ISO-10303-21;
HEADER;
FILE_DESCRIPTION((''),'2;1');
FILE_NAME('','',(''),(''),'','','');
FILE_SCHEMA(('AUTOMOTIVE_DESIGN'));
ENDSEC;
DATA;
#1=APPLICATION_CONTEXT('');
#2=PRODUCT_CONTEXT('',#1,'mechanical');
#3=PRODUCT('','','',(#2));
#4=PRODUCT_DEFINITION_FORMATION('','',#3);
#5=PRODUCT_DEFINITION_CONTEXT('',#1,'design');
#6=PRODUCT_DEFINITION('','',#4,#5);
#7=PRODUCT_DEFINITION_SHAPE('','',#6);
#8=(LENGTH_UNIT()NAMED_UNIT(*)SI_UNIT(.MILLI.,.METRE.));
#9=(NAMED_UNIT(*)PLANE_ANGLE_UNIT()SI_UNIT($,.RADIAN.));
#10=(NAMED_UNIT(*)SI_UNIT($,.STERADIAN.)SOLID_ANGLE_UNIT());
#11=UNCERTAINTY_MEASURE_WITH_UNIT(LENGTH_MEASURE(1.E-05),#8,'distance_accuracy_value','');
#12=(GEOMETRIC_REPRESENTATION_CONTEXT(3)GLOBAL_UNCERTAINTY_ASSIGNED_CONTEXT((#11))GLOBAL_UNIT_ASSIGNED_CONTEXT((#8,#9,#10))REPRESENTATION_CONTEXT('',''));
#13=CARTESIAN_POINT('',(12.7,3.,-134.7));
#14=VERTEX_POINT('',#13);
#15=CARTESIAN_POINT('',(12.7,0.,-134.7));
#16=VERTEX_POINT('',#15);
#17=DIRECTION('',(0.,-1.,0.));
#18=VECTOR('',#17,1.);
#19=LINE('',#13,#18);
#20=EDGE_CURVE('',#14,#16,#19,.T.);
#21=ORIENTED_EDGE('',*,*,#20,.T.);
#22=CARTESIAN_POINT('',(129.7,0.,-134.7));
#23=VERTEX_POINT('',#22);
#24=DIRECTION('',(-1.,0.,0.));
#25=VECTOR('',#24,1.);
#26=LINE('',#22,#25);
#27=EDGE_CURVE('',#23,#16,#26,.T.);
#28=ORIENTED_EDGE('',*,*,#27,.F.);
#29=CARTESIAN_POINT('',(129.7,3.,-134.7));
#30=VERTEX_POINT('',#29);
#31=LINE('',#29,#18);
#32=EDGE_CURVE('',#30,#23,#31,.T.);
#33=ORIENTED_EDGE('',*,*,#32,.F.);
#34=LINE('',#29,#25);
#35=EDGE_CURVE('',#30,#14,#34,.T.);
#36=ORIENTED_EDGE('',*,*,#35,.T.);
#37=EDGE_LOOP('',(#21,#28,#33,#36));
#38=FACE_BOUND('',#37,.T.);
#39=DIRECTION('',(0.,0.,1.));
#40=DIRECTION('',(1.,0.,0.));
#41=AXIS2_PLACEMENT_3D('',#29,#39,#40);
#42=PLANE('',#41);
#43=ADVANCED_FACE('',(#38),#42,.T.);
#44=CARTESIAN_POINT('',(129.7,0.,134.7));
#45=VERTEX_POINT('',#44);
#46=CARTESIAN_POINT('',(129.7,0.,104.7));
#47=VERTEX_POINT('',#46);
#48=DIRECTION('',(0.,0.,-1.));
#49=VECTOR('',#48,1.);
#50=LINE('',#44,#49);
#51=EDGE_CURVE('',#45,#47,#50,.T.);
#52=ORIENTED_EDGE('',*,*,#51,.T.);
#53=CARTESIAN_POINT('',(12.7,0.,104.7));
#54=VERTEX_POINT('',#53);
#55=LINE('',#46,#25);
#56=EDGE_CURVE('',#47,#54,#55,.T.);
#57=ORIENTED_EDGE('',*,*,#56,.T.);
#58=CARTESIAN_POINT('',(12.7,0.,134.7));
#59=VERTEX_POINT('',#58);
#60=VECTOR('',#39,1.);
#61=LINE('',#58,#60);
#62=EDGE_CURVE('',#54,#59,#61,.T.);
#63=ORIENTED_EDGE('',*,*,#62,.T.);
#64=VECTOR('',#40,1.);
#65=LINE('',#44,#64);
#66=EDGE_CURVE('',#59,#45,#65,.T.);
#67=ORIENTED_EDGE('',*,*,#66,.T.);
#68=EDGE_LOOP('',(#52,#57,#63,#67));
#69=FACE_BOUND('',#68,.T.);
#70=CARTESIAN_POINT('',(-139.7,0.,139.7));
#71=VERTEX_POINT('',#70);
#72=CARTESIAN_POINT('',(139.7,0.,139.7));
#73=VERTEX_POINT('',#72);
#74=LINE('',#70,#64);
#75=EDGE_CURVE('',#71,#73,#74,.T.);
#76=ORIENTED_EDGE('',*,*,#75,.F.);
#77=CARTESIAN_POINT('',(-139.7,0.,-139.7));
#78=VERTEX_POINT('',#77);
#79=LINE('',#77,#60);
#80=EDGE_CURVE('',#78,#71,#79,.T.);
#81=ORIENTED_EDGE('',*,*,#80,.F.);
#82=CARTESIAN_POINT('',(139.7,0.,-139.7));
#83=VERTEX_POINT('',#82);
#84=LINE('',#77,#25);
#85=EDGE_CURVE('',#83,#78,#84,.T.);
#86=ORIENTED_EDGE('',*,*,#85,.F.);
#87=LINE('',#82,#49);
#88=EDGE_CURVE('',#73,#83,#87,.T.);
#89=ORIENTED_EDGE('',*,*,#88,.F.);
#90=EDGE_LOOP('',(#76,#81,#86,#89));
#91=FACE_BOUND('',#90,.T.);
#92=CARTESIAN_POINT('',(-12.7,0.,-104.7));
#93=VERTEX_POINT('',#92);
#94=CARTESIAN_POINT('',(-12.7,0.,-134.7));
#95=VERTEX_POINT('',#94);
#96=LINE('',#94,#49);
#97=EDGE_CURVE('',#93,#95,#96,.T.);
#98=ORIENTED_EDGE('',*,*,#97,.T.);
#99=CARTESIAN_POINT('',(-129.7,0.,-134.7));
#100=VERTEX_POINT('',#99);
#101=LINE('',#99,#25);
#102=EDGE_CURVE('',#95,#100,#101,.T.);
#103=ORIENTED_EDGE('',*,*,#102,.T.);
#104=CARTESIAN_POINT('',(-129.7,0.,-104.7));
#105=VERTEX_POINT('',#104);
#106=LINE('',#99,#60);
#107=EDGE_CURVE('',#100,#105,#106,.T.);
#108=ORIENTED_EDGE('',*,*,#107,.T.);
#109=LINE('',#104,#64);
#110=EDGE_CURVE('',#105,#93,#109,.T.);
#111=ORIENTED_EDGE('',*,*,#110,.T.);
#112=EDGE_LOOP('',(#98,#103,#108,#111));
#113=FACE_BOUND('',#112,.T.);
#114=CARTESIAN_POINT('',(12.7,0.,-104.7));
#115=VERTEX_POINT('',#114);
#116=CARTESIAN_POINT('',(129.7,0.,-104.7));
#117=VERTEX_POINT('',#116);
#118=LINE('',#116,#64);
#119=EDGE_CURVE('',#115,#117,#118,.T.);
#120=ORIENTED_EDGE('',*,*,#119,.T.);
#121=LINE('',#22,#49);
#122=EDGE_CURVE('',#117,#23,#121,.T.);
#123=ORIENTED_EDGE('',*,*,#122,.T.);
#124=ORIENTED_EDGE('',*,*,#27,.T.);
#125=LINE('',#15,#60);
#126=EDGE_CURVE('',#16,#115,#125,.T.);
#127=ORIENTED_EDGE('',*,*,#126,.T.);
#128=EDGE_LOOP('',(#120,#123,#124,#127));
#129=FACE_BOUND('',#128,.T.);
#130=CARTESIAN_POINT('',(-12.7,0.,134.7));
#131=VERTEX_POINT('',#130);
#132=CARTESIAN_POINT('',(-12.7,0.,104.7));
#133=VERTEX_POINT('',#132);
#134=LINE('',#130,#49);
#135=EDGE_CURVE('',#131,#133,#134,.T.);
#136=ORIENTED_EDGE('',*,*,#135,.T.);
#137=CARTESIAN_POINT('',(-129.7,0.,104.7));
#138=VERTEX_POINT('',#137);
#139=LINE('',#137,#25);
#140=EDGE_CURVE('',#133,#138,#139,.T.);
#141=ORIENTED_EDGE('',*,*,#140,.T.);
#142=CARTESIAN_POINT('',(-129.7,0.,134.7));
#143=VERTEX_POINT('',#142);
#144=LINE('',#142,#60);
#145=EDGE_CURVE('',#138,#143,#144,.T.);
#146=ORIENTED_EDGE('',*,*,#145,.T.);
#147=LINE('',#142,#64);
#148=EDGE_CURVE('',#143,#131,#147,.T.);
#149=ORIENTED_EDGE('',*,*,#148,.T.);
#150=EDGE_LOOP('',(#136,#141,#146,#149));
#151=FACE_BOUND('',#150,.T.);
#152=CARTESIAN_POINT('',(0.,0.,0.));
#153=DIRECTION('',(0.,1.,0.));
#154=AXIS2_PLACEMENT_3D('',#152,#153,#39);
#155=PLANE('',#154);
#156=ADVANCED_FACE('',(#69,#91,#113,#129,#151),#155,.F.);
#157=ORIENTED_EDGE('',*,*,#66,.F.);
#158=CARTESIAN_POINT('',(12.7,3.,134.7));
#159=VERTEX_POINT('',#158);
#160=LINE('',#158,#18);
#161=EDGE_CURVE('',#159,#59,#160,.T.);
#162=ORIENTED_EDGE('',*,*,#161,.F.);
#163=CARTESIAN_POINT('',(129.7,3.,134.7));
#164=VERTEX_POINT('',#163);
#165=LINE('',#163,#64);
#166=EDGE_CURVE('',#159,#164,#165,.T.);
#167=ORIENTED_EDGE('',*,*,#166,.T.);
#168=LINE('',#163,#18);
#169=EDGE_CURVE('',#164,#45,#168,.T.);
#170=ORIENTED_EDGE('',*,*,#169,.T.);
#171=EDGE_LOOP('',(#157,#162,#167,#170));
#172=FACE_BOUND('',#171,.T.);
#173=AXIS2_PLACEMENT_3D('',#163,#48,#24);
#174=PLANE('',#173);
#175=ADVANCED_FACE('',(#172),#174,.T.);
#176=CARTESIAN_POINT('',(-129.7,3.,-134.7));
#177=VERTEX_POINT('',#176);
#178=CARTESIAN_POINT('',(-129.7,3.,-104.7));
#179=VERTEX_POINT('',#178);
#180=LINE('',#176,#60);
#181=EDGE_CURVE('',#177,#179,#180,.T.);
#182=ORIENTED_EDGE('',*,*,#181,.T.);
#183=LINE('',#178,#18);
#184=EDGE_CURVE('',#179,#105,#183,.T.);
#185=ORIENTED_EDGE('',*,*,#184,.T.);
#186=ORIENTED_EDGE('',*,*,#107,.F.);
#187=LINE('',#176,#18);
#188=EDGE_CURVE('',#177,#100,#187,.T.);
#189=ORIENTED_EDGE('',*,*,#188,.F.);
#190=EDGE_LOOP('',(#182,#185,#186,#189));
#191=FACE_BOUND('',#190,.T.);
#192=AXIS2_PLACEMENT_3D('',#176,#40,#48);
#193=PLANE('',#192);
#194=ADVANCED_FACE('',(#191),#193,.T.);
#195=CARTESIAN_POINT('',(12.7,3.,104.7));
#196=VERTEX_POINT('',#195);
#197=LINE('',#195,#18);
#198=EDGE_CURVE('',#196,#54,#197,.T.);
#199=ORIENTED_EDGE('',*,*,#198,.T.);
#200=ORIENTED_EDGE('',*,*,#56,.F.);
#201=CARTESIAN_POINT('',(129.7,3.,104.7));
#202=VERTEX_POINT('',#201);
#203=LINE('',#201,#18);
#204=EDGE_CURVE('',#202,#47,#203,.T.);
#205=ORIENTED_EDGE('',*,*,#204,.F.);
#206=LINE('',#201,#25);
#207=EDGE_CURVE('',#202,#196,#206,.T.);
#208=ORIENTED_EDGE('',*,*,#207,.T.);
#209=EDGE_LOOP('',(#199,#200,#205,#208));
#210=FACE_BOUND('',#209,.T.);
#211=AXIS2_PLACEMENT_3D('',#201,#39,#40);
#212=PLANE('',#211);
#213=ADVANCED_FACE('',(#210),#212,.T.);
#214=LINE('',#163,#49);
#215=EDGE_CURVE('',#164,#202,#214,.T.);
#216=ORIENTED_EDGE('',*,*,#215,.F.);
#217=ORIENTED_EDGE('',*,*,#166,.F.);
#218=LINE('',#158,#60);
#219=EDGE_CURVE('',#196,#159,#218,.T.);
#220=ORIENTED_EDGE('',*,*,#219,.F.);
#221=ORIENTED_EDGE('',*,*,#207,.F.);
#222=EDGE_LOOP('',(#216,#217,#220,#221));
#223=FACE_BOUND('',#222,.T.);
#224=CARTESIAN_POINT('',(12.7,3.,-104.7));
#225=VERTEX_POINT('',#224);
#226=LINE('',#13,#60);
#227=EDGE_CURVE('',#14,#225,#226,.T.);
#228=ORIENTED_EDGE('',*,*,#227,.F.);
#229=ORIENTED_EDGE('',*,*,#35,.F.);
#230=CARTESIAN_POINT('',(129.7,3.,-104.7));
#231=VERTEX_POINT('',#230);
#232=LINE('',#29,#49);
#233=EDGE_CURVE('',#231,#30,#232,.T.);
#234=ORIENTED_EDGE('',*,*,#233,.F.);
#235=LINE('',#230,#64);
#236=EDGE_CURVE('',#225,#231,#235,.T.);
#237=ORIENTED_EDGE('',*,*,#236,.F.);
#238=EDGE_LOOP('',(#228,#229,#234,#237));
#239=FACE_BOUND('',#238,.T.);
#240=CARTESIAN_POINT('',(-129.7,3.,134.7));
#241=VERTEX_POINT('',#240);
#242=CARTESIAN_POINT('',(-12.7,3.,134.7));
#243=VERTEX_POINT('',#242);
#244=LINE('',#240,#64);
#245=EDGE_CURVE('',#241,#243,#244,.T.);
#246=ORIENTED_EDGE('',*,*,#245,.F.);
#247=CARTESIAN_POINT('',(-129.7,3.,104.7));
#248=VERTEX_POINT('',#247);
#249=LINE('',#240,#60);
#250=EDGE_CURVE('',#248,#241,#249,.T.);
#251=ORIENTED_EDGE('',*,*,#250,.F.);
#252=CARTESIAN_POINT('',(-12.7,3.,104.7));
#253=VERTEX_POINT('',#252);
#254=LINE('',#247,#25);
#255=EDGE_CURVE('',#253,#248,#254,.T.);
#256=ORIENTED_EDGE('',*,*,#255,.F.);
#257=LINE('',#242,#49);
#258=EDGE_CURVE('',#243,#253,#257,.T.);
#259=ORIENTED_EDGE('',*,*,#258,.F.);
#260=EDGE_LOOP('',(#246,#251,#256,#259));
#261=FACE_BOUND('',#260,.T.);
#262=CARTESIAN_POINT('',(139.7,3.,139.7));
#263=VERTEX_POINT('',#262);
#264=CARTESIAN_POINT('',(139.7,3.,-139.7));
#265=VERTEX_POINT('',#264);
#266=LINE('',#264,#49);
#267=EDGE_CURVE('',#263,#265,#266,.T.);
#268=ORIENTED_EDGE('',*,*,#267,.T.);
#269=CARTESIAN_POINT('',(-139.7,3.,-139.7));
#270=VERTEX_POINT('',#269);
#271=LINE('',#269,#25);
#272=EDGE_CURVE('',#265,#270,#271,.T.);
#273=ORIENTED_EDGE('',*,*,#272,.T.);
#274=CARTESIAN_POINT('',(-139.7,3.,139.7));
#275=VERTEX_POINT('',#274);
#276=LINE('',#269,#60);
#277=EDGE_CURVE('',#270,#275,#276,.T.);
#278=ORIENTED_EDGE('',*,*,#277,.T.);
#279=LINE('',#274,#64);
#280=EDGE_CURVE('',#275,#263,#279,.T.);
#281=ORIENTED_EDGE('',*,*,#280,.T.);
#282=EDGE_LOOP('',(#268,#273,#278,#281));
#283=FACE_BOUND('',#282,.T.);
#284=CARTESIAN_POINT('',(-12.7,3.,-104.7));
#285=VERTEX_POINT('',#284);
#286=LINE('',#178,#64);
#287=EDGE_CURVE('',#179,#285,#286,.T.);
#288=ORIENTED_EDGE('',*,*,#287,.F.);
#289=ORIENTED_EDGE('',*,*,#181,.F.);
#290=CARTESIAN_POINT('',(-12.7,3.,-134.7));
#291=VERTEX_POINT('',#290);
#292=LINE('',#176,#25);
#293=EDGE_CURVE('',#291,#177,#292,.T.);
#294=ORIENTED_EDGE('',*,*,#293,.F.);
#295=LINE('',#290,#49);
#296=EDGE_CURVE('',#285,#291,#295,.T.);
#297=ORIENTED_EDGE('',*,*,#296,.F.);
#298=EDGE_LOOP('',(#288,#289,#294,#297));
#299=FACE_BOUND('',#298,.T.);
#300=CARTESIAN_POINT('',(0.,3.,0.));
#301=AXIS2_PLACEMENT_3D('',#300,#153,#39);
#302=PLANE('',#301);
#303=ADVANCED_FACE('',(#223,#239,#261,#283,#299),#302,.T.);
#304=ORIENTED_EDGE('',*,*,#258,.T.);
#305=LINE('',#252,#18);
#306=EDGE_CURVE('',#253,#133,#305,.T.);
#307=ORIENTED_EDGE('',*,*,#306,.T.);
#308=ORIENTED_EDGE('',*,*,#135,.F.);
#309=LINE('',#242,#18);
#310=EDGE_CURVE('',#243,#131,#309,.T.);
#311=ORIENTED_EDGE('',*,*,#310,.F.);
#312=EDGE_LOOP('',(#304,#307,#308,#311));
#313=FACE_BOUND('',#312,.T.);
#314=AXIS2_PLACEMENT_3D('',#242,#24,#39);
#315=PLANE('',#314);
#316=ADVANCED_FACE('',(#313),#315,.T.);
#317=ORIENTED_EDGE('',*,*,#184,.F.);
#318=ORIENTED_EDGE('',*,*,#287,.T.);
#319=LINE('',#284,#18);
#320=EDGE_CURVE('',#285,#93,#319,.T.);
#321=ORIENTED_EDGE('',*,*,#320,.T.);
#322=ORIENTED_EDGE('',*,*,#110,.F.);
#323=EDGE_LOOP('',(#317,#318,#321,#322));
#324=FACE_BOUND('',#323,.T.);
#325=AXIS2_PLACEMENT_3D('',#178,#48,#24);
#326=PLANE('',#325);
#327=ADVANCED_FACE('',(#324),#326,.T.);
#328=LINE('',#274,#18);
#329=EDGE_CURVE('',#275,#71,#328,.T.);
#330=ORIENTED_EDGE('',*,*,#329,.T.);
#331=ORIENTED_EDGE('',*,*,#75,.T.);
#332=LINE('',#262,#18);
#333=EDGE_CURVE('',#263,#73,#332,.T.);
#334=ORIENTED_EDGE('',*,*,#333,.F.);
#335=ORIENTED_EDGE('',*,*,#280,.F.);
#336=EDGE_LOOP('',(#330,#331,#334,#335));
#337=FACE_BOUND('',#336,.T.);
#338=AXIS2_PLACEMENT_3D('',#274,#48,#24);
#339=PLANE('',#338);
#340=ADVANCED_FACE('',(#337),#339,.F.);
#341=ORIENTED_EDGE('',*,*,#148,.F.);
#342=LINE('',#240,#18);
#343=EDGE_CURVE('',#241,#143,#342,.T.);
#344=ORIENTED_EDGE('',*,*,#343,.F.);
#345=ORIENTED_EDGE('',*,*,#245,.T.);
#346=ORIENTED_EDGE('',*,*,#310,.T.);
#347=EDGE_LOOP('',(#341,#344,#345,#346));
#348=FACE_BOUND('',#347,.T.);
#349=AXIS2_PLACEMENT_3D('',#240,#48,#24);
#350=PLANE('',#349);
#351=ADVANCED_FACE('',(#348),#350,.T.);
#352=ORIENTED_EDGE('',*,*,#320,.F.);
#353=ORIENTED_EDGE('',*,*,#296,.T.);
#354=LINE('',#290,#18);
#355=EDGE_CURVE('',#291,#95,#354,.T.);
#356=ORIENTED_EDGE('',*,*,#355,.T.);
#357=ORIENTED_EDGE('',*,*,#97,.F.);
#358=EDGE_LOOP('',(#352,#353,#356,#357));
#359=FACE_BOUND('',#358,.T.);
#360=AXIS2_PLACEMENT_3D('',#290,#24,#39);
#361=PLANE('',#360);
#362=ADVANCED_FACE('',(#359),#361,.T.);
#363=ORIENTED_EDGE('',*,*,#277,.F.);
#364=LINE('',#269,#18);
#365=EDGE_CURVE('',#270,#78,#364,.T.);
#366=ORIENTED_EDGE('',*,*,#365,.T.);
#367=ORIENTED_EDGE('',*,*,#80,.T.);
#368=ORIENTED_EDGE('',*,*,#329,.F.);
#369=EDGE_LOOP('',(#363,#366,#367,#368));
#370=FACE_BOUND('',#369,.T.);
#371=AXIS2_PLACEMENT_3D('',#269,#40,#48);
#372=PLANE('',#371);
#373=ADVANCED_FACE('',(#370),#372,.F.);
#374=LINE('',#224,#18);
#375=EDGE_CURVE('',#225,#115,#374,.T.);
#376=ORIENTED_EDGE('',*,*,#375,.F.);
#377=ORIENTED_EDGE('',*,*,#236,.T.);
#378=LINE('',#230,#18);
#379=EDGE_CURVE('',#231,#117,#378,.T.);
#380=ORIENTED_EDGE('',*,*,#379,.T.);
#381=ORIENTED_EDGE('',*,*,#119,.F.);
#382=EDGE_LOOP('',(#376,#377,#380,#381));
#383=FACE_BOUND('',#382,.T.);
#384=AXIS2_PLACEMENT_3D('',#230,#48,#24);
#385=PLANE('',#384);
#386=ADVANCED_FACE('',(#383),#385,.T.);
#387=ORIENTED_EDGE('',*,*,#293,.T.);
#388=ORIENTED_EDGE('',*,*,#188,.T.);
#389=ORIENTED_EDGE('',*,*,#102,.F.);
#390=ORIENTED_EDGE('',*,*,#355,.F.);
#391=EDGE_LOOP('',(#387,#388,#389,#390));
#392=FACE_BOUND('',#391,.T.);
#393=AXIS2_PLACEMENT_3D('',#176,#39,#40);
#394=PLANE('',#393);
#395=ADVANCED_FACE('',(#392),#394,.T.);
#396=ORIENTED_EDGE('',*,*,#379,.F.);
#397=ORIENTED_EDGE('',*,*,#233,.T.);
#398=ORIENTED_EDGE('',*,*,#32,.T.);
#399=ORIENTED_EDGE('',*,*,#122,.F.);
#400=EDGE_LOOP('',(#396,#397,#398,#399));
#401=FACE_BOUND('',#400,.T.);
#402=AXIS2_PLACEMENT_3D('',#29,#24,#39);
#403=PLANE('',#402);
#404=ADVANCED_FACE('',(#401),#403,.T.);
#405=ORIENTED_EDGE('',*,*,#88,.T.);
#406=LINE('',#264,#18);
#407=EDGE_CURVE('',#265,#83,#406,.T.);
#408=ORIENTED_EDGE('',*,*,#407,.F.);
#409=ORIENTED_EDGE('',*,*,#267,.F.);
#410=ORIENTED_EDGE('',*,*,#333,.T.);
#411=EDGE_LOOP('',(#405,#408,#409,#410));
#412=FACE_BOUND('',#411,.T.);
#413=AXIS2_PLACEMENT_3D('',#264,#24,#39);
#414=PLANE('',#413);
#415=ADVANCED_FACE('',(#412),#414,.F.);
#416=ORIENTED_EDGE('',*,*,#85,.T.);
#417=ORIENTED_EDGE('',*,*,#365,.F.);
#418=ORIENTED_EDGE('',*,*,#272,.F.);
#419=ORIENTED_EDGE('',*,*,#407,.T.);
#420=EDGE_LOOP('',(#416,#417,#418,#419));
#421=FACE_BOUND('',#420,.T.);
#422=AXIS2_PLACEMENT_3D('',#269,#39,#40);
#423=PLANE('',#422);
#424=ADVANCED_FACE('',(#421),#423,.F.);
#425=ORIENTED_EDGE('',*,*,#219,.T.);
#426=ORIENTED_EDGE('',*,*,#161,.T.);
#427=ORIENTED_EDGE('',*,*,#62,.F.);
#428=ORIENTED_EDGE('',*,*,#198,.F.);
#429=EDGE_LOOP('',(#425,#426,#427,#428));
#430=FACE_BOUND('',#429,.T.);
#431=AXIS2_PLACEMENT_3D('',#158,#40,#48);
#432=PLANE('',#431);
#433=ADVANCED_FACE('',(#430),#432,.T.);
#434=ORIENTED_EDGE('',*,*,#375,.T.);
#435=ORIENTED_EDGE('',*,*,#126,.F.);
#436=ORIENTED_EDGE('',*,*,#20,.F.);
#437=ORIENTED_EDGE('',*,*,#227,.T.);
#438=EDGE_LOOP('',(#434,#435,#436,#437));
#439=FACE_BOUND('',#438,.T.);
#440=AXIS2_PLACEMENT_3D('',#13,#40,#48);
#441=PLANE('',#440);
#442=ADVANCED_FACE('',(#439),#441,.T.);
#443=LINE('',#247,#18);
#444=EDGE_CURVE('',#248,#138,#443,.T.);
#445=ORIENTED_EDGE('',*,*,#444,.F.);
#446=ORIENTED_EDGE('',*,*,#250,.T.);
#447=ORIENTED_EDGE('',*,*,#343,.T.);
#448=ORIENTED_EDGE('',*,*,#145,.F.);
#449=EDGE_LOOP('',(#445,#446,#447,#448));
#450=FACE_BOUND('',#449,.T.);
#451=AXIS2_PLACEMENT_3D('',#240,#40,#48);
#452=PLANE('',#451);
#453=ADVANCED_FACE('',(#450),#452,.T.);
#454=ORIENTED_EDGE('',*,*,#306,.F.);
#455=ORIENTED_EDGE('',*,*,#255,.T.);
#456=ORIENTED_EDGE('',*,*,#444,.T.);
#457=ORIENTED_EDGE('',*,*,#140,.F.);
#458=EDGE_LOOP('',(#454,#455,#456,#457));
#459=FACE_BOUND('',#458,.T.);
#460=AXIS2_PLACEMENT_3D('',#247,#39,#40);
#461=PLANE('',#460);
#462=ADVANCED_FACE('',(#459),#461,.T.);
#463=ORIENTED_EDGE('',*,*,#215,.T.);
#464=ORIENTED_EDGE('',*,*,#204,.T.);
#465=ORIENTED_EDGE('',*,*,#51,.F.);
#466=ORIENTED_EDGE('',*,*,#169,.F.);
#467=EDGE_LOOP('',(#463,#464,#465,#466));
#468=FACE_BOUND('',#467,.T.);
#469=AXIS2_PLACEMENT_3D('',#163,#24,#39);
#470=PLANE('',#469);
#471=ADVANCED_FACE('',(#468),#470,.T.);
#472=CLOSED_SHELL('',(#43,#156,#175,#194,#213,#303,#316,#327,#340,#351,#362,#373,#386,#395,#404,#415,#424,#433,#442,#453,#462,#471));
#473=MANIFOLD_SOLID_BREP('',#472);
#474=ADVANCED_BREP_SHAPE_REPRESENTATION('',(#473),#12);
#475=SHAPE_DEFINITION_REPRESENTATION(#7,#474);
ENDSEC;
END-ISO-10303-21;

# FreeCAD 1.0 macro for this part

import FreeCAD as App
import Part
import Sketcher
Q = App.Units.Quantity

doc = App.newDocument("Part")
body = doc.addObject("PartDesign::Body", "Body")

sketch1 = body.newObject("Sketcher::SketchObject", "Sketch")
sketch1.AttachmentSupport = (doc.getObject("XZ_Plane"), [""])
sketch1.MapMode = "FlatFace"
sketch1.addGeometry([
    Part.LineSegment(App.Vector(-139.7, -139.7, 0), App.Vector(-139.7, 139.7, 0)),
    Part.LineSegment(App.Vector(-139.7, 139.7, 0), App.Vector(139.7, 139.7, 0)),
    Part.LineSegment(App.Vector(139.7, 139.7, 0), App.Vector(139.7, -139.7, 0)),
    Part.LineSegment(App.Vector(139.7, -139.7, 0), App.Vector(-139.7, -139.7, 0)),
    Part.LineSegment(App.Vector(-12.7, 134.7, 0), App.Vector(-129.7, 134.7, 0)),
    Part.LineSegment(App.Vector(-129.7, 134.7, 0), App.Vector(-129.7, 104.7, 0)),
    Part.LineSegment(App.Vector(-129.7, 104.7, 0), App.Vector(-12.7, 104.7, 0)),
    Part.LineSegment(App.Vector(-12.7, 104.7, 0), App.Vector(-12.7, 134.7, 0)),
    Part.LineSegment(App.Vector(129.7, 134.7, 0), App.Vector(12.7, 134.7, 0)),
    Part.LineSegment(App.Vector(12.7, 134.7, 0), App.Vector(12.7, 104.7, 0)),
    Part.LineSegment(App.Vector(12.7, 104.7, 0), App.Vector(129.7, 104.7, 0)),
    Part.LineSegment(App.Vector(129.7, 104.7, 0), App.Vector(129.7, 134.7, 0)),
    Part.LineSegment(App.Vector(-12.7, -104.7, 0), App.Vector(-129.7, -104.7, 0)),
    Part.LineSegment(App.Vector(-129.7, -104.7, 0), App.Vector(-129.7, -134.7, 0)),
    Part.LineSegment(App.Vector(-129.7, -134.7, 0), App.Vector(-12.7, -134.7, 0)),
    Part.LineSegment(App.Vector(-12.7, -134.7, 0), App.Vector(-12.7, -104.7, 0)),
    Part.LineSegment(App.Vector(129.7, -104.7, 0), App.Vector(12.7, -104.7, 0)),
    Part.LineSegment(App.Vector(12.7, -104.7, 0), App.Vector(12.7, -134.7, 0)),
    Part.LineSegment(App.Vector(12.7, -134.7, 0), App.Vector(129.7, -134.7, 0)),
    Part.LineSegment(App.Vector(129.7, -134.7, 0), App.Vector(129.7, -104.7, 0)),
], False)
sketch1.addConstraint([
    Sketcher.Constraint("Coincident", 0, 2, 1, 1),
    Sketcher.Constraint("Coincident", 1, 2, 2, 1),
    Sketcher.Constraint("Coincident", 2, 2, 3, 1),
    Sketcher.Constraint("Coincident", 3, 2, 0, 1),
    Sketcher.Constraint("Coincident", 4, 2, 5, 1),
    Sketcher.Constraint("Coincident", 5, 2, 6, 1),
    Sketcher.Constraint("Coincident", 6, 2, 7, 1),
    Sketcher.Constraint("Coincident", 7, 2, 4, 1),
    Sketcher.Constraint("Coincident", 8, 2, 9, 1),
    Sketcher.Constraint("Coincident", 9, 2, 10, 1),
    Sketcher.Constraint("Coincident", 10, 2, 11, 1),
    Sketcher.Constraint("Coincident", 11, 2, 8, 1),
    Sketcher.Constraint("Coincident", 12, 2, 13, 1),
    Sketcher.Constraint("Coincident", 13, 2, 14, 1),
    Sketcher.Constraint("Coincident", 14, 2, 15, 1),
    Sketcher.Constraint("Coincident", 15, 2, 12, 1),
    Sketcher.Constraint("Coincident", 16, 2, 17, 1),
    Sketcher.Constraint("Coincident", 17, 2, 18, 1),
    Sketcher.Constraint("Coincident", 18, 2, 19, 1),
    Sketcher.Constraint("Coincident", 19, 2, 16, 1),
    Sketcher.Constraint("Vertical", 0),
    Sketcher.Constraint("Horizontal", 1),
    Sketcher.Constraint("Vertical", 2),
    Sketcher.Constraint("Horizontal", 3),
    Sketcher.Constraint("Horizontal", 4),
    Sketcher.Constraint("Vertical", 5),
    Sketcher.Constraint("Horizontal", 6),
    Sketcher.Constraint("Vertical", 7),
    Sketcher.Constraint("Horizontal", 8),
    Sketcher.Constraint("Vertical", 9),
    Sketcher.Constraint("Horizontal", 10),
    Sketcher.Constraint("Vertical", 11),
    Sketcher.Constraint("Horizontal", 12),
    Sketcher.Constraint("Vertical", 13),
    Sketcher.Constraint("Horizontal", 14),
    Sketcher.Constraint("Vertical", 15),
    Sketcher.Constraint("Horizontal", 16),
    Sketcher.Constraint("Vertical", 17),
    Sketcher.Constraint("Horizontal", 18),
    Sketcher.Constraint("Vertical", 19),
    Sketcher.Constraint("Symmetric", 0, 2, 2, 2, -1, 1),
    Sketcher.Constraint("Symmetric", 10, 2, 12, 2, -1, 1),
    Sketcher.Constraint("Symmetric", 8, 2, 14, 2, -1, 1),
    Sketcher.Constraint("Symmetric", 6, 2, 16, 2, -1, 1),
    Sketcher.Constraint("Symmetric", 4, 2, 18, 2, -1, 1),
    Sketcher.Constraint("Symmetric", 7, 2, 8, 2, -2),
    Sketcher.Constraint("Symmetric", 5, 2, 10, 2, -2),
    Sketcher.Constraint("Equal", 3, 0),
    Sketcher.Constraint("DistanceX", 4, 2, 4, 1, Q("117 mm")),
    Sketcher.Constraint("DistanceY", 5, 2, 5, 1, Q("30 mm")),
    Sketcher.Constraint("DistanceX", 1, 1, 1, 2, Q("279.4 mm")),
    Sketcher.Constraint("DistanceX", 0, 2, 4, 2, Q("10 mm")),
    Sketcher.Constraint("DistanceY", 4, 2, 0, 2, Q("5 mm")),
])
pad1 = body.newObject("PartDesign::Pad", "Pad")
pad1.Profile = sketch1
pad1.Length = 3
pad1.Reversed = True

doc.recompute()
